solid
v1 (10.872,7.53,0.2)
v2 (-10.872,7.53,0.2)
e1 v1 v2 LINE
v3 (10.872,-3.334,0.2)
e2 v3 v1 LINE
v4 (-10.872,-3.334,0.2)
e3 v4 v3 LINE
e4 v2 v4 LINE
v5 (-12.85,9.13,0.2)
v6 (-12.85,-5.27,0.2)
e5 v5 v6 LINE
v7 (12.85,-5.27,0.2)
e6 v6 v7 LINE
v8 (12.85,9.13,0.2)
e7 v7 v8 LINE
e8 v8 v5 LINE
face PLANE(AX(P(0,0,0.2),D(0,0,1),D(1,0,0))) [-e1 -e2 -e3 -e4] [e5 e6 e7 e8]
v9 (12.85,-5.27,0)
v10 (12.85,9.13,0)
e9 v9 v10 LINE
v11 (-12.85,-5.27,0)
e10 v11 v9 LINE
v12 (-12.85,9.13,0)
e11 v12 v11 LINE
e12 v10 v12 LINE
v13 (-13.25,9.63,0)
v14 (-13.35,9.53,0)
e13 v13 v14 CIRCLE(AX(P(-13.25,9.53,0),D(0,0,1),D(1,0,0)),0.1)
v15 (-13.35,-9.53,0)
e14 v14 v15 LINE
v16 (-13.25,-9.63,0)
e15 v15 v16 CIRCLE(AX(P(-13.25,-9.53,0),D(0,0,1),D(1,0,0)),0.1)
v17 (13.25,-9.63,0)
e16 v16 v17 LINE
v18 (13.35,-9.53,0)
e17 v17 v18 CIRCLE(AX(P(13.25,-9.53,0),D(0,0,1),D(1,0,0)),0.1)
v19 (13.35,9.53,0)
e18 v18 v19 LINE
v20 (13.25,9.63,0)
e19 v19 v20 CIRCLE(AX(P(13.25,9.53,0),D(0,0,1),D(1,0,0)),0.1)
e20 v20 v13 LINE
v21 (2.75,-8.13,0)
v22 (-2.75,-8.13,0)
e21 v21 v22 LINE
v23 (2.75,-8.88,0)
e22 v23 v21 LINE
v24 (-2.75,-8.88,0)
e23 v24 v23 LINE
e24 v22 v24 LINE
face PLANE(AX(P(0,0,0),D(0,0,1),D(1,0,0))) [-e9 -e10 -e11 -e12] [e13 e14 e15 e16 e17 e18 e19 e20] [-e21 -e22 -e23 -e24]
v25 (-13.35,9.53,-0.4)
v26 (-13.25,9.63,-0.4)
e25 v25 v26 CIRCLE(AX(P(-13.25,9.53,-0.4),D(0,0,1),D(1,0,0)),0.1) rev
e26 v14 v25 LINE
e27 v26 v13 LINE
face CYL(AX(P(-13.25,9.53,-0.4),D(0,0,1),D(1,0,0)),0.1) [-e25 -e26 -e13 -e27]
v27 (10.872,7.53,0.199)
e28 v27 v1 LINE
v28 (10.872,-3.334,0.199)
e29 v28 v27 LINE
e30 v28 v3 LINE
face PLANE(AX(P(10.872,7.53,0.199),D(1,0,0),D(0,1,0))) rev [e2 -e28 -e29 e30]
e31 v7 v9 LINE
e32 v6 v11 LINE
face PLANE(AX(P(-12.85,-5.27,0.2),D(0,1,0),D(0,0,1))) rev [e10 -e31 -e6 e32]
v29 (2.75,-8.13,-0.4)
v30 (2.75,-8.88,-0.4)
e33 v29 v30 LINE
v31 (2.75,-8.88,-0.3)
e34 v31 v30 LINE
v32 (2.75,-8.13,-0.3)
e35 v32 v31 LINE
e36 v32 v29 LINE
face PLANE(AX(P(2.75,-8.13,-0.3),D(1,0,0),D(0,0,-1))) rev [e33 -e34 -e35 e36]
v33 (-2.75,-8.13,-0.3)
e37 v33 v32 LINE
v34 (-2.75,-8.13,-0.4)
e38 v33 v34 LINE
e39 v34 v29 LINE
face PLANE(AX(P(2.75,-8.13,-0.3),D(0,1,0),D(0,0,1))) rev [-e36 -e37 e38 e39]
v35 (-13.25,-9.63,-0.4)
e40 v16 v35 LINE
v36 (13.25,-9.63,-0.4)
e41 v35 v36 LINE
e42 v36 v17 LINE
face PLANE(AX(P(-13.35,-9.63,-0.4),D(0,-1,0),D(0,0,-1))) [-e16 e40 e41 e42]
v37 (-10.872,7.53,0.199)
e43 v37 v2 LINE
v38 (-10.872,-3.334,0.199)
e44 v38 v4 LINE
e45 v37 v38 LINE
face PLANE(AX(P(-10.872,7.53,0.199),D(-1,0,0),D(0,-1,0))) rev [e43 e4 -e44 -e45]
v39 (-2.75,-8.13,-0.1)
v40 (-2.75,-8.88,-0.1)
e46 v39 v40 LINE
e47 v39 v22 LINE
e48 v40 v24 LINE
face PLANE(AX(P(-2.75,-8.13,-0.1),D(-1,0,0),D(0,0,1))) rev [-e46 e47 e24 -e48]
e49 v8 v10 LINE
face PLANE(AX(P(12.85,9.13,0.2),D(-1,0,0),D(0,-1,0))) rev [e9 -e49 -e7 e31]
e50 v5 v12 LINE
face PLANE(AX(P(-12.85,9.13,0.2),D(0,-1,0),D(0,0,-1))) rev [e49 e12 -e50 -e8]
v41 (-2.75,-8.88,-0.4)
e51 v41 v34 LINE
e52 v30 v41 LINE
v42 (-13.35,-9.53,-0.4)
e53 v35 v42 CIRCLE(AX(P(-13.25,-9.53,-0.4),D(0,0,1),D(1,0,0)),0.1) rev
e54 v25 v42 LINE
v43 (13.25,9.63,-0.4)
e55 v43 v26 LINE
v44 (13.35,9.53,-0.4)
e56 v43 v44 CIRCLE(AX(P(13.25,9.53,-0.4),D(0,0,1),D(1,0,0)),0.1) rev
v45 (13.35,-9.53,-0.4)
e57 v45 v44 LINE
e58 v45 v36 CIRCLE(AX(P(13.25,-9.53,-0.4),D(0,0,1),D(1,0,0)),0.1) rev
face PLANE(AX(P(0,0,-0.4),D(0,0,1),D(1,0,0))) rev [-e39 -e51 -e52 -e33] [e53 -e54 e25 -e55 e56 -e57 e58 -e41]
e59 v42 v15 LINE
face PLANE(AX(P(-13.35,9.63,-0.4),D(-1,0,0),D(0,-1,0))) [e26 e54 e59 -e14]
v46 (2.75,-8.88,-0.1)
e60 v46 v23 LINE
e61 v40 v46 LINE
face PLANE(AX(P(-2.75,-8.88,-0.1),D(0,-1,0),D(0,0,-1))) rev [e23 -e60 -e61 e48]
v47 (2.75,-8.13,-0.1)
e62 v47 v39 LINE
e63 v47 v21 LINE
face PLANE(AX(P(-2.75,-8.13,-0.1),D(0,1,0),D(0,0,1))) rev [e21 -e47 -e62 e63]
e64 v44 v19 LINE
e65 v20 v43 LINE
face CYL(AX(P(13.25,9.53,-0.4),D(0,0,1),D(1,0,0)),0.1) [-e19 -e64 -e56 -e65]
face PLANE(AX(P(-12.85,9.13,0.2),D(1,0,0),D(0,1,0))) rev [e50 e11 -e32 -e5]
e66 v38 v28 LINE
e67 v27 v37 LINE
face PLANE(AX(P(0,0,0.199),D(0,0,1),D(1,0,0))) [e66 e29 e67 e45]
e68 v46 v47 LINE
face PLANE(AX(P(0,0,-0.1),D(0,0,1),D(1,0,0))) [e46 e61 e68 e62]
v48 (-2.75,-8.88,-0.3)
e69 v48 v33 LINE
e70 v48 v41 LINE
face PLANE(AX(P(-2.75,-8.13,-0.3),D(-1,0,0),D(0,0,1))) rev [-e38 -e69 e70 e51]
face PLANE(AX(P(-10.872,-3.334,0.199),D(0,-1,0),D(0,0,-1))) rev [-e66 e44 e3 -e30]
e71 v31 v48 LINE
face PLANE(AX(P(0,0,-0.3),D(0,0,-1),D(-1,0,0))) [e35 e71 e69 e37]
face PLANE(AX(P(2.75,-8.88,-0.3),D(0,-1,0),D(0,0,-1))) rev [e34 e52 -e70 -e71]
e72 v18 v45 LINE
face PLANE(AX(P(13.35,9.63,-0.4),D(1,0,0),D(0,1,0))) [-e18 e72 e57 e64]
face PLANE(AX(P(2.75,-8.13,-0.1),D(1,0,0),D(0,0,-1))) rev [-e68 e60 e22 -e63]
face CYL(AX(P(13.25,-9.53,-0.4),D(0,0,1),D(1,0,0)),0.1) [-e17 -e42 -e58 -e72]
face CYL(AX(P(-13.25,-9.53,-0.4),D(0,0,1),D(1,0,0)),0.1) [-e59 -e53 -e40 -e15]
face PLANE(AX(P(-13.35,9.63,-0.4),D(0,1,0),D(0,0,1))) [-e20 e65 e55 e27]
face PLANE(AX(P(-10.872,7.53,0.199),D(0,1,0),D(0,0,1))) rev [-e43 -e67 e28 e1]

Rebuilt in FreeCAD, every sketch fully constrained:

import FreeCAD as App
import Part
import Sketcher


def edges_at(feature, points):
    """Names of the edges that pass closest to the given points."""
    edges = feature.Shape.Edges
    near = lambda p: min(range(len(edges)), key=lambda i: edges[i].distToShape(Part.Vertex(*p))[0])
    return sorted({f"Edge{near(p) + 1}" for p in points})


def add_polygon(sketch, points):
    """Adds a closed chain of lines whose ends are joined by coincident constraints."""
    first, n = sketch.GeometryCount, len(points)
    for a, b in zip(points, points[1:] + points[:1]):
        sketch.addGeometry(Part.LineSegment(App.Vector(*a, 0), App.Vector(*b, 0)), False)
    for i in range(n):
        sketch.addConstraint(Sketcher.Constraint("Coincident", first + i, 2, first + (i + 1) % n, 1))

doc = App.newDocument("Part")
body = doc.addObject("PartDesign::Body", "Body")

sketch1 = body.newObject("Sketcher::SketchObject", "Sketch")
sketch1.AttachmentSupport = (doc.getObject("XY_Plane"), [""])
sketch1.MapMode = "FlatFace"
add_polygon(sketch1, [(-13.35, 9.63), (-13.35, -9.63), (13.35, -9.63), (13.35, 9.63)])
sketch1.addConstraint([
    Sketcher.Constraint("Vertical", 0),
    Sketcher.Constraint("Horizontal", 1),
    Sketcher.Constraint("Vertical", 2),
    Sketcher.Constraint("Horizontal", 3),
    Sketcher.Constraint("Symmetric", 0, 2, 2, 2, -1, 1),
    Sketcher.Constraint("DistanceX", 1, 1, 1, 2, 26.7),
    Sketcher.Constraint("DistanceY", 0, 2, 0, 1, 19.26),
])
pad1 = body.newObject("PartDesign::Pad", "Pad")
pad1.Profile = sketch1
pad1.Length = 0.4
pad1.Reversed = True

sketch2 = body.newObject("Sketcher::SketchObject", "Sketch001")
sketch2.AttachmentSupport = (doc.getObject("XY_Plane"), [""])
sketch2.MapMode = "FlatFace"
add_polygon(sketch2, [(-12.85, 9.13), (-12.85, -5.27), (12.85, -5.27), (12.85, 9.13)])
sketch2.addConstraint([
    Sketcher.Constraint("Vertical", 0),
    Sketcher.Constraint("Horizontal", 1),
    Sketcher.Constraint("Vertical", 2),
    Sketcher.Constraint("Horizontal", 3),
    Sketcher.Constraint("DistanceX", 1, 1, 1, 2, 25.7),
    Sketcher.Constraint("DistanceY", 0, 2, 0, 1, 14.4),
    Sketcher.Constraint("DistanceX", 0, 2, -1, 1, 12.85),
    Sketcher.Constraint("DistanceY", 0, 2, -1, 1, 5.27),
])
pad2 = body.newObject("PartDesign::Pad", "Pad001")
pad2.Profile = sketch2
pad2.Length = 0.2

sketch3 = body.newObject("Sketcher::SketchObject", "Sketch002")
sketch3.AttachmentSupport = (doc.getObject("XY_Plane"), [""])
sketch3.MapMode = "FlatFace"
sketch3.AttachmentOffset = App.Placement(App.Vector(0, 0, 0.2), App.Rotation())
add_polygon(sketch3, [(-10.872, 7.53), (-10.872, -3.334), (10.872, -3.334), (10.872, 7.53)])
sketch3.addConstraint([
    Sketcher.Constraint("Vertical", 0),
    Sketcher.Constraint("Horizontal", 1),
    Sketcher.Constraint("Vertical", 2),
    Sketcher.Constraint("Horizontal", 3),
    Sketcher.Constraint("DistanceX", 1, 1, 1, 2, 21.744),
    Sketcher.Constraint("DistanceY", 0, 2, 0, 1, 10.864),
    Sketcher.Constraint("DistanceY", -1, 1, 2, 2, 7.53),
    Sketcher.Constraint("DistanceX", 0, 2, -1, 1, 10.872),
])
pocket1 = body.newObject("PartDesign::Pocket", "Pocket")
pocket1.Profile = sketch3
pocket1.Length = 0.001
doc.recompute()

fillet = body.newObject("PartDesign::Fillet", "Fillet")
fillet.Base = (pocket1, edges_at(pocket1, [
    (13.35, -9.63, -0.2),
    (-13.35, -9.63, -0.2),
    (-13.35, 9.63, -0.2),
    (13.35, 9.63, -0.2),
]))
fillet.Radius = 0.1

sketch4 = body.newObject("Sketcher::SketchObject", "Sketch003")
sketch4.AttachmentSupport = (doc.getObject("XY_Plane"), [""])
sketch4.MapMode = "FlatFace"
add_polygon(sketch4, [(-2.75, -8.13), (-2.75, -8.88), (2.75, -8.88), (2.75, -8.13)])
sketch4.addConstraint([
    Sketcher.Constraint("Vertical", 0),
    Sketcher.Constraint("Horizontal", 1),
    Sketcher.Constraint("Vertical", 2),
    Sketcher.Constraint("Horizontal", 3),
    Sketcher.Constraint("DistanceX", 1, 1, 1, 2, 5.5),
    Sketcher.Constraint("DistanceY", 0, 2, 0, 1, 0.75),
    Sketcher.Constraint("DistanceX", 0, 2, -1, 1, 2.75),
    Sketcher.Constraint("DistanceY", 0, 2, -1, 1, 8.88),
])
pocket2 = body.newObject("PartDesign::Pocket", "Pocket001")
pocket2.Profile = sketch4
pocket2.Length = 0.1

sketch5 = body.newObject("Sketcher::SketchObject", "Sketch004")
sketch5.AttachmentSupport = (doc.getObject("XY_Plane"), [""])
sketch5.MapMode = "FlatFace"
sketch5.AttachmentOffset = App.Placement(App.Vector(0, 0, -0.4), App.Rotation())
add_polygon(sketch5, [(2.75, -8.13), (2.75, -8.88), (-2.75, -8.88), (-2.75, -8.13)])
sketch5.addConstraint([
    Sketcher.Constraint("Vertical", 0),
    Sketcher.Constraint("Horizontal", 1),
    Sketcher.Constraint("Vertical", 2),
    Sketcher.Constraint("Horizontal", 3),
    Sketcher.Constraint("DistanceX", 1, 2, 1, 1, 5.5),
    Sketcher.Constraint("DistanceY", 0, 2, 0, 1, 0.75),
    Sketcher.Constraint("DistanceX", -1, 1, 0, 2, 2.75),
    Sketcher.Constraint("DistanceY", 0, 2, -1, 1, 8.88),
])
pocket3 = body.newObject("PartDesign::Pocket", "Pocket002")
pocket3.Profile = sketch5
pocket3.Length = 0.1
pocket3.Reversed = True

doc.recompute()
